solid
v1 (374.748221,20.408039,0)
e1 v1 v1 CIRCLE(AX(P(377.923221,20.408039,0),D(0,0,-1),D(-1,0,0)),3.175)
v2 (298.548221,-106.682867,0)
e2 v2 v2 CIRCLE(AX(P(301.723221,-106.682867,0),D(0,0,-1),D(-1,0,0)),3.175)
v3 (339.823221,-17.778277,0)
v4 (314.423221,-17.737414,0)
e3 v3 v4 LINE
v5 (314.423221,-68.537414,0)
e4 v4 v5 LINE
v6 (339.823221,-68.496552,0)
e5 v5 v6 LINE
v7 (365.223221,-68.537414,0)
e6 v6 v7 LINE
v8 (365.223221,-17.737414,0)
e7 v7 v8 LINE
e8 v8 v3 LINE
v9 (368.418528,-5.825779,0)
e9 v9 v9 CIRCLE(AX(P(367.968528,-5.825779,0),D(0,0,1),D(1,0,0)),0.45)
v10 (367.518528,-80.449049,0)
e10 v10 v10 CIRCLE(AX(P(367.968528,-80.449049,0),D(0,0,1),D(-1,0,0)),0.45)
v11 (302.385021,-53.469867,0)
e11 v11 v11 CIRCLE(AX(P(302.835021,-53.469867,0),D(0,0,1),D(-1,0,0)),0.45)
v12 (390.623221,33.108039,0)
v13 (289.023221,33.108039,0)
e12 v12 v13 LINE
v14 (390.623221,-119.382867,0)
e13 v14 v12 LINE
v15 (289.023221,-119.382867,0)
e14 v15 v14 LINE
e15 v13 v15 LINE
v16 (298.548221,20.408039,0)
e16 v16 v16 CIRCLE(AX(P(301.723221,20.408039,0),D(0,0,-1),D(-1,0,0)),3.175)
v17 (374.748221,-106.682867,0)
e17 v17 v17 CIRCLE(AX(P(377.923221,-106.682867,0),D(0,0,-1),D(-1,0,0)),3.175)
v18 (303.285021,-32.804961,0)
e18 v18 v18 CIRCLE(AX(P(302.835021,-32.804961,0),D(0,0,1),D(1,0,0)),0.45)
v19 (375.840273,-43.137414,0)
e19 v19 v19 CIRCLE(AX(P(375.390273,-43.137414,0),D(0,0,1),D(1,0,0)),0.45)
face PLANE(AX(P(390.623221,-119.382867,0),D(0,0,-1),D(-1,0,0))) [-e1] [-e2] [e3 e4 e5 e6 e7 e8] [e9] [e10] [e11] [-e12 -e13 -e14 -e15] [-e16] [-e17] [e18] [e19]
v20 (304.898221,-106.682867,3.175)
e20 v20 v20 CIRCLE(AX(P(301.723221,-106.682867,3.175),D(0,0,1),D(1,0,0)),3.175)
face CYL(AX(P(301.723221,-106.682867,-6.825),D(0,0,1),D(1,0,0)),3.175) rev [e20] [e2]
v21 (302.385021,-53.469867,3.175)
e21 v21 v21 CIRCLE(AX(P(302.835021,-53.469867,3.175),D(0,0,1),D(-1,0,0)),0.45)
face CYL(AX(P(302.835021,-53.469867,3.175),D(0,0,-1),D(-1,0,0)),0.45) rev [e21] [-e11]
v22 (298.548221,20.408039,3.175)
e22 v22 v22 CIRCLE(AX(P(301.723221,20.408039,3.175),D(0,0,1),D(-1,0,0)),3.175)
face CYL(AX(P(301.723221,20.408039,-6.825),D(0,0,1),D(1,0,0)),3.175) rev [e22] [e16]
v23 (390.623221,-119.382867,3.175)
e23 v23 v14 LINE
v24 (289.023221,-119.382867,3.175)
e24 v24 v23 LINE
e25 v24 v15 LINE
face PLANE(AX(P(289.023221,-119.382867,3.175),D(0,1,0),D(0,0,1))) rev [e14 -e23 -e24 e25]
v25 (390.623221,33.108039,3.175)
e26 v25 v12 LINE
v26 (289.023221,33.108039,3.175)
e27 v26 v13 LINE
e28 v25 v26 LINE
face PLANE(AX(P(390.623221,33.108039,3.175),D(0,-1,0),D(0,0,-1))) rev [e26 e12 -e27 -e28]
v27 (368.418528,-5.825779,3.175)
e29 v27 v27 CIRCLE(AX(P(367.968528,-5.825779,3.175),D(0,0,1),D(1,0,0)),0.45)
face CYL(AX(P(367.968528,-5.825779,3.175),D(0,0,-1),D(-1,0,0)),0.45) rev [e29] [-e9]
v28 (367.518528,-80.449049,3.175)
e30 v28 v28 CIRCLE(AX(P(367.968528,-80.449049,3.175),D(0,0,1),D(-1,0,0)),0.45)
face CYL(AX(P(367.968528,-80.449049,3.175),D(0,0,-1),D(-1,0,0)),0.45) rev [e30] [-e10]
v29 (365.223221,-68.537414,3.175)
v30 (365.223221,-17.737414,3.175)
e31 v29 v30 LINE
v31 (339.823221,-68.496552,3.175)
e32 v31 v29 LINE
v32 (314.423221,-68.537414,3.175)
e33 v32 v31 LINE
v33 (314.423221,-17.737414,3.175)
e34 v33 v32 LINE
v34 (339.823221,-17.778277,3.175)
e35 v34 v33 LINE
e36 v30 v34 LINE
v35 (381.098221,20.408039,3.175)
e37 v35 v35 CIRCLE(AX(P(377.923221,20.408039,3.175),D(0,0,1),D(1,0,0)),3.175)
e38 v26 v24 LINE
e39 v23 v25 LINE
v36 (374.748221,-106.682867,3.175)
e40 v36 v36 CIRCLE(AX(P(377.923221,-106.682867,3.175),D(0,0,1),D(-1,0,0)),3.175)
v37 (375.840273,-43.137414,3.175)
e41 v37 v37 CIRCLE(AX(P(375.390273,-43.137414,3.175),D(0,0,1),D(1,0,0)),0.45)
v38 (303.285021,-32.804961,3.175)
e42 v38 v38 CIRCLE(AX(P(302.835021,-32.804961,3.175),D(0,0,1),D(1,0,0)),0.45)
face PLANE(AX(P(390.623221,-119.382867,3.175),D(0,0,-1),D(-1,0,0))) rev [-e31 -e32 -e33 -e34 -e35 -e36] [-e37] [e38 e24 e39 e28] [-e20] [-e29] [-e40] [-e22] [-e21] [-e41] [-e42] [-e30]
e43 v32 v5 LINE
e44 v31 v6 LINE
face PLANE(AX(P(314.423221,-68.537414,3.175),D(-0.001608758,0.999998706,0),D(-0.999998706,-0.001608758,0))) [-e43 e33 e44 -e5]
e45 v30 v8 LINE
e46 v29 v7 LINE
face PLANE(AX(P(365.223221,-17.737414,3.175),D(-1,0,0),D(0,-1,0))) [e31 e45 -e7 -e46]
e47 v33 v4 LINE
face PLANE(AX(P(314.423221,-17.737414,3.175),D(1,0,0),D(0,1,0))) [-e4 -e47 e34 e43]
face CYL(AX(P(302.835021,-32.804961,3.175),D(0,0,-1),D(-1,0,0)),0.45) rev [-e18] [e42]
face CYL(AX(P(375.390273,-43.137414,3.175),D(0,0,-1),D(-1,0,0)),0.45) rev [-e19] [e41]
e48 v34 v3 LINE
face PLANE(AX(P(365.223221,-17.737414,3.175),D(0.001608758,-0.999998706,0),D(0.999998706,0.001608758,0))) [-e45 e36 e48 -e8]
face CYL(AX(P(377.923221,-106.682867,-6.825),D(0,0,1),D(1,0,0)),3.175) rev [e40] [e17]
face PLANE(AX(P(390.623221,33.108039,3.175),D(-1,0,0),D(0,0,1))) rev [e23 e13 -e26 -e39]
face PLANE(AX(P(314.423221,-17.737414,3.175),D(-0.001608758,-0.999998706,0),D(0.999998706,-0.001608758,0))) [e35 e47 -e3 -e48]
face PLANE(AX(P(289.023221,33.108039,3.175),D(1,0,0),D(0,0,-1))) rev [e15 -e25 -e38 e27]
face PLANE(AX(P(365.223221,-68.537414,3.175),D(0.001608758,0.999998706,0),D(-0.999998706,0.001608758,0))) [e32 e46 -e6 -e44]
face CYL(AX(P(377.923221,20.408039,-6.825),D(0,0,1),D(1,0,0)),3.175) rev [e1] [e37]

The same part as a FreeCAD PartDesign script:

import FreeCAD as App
import Part
import Sketcher
Q = App.Units.Quantity


def add_polygon(sketch, points):
    """Adds a closed chain of lines whose ends are joined by coincident constraints."""
    first, n = sketch.GeometryCount, len(points)
    for a, b in zip(points, points[1:] + points[:1]):
        sketch.addGeometry(Part.LineSegment(App.Vector(*a, 0), App.Vector(*b, 0)), False)
    for i in range(n):
        sketch.addConstraint(Sketcher.Constraint("Coincident", first + i, 2, first + (i + 1) % n, 1))

doc = App.newDocument("Part")
body = doc.addObject("PartDesign::Body", "Body")

sketch1 = body.newObject("Sketcher::SketchObject", "Sketch")
sketch1.AttachmentSupport = (doc.getObject("XY_Plane"), [""])
sketch1.MapMode = "FlatFace"
add_polygon(sketch1, [(289.02, 33.11), (289.02, -119.38), (390.62, -119.38), (390.62, 33.11)])
sketch1.addGeometry(Part.Circle(App.Vector(302.84, -53.47, 0), App.Vector(0, 0, 1), 0.45), False)
sketch1.addGeometry(Part.Circle(App.Vector(367.97, -80.45, 0), App.Vector(0, 0, 1), 0.45), False)
add_polygon(sketch1, [(339.82, -17.78), (365.22, -17.74), (365.22, -68.54), (339.82, -68.5), (314.42, -68.54), (314.42, -17.74)])
sketch1.addGeometry(Part.Circle(App.Vector(375.39, -43.14, 0), App.Vector(0, 0, 1), 0.45), False)
sketch1.addGeometry(Part.Circle(App.Vector(302.84, -32.8, 0), App.Vector(0, 0, 1), 0.45), False)
sketch1.addGeometry(Part.Circle(App.Vector(367.97, -5.83, 0), App.Vector(0, 0, 1), 0.45), False)
sketch1.addConstraint(Sketcher.Constraint("Vertical", 0))
sketch1.addConstraint(Sketcher.Constraint("Horizontal", 1))
sketch1.addConstraint(Sketcher.Constraint("Vertical", 2))
sketch1.addConstraint(Sketcher.Constraint("Horizontal", 3))
sketch1.addConstraint(Sketcher.Constraint("Vertical", 7))
sketch1.addConstraint(Sketcher.Constraint("Vertical", 10))
sketch1.addConstraint(Sketcher.Constraint("Equal", 4, 5))
sketch1.addConstraint(Sketcher.Constraint("Equal", 5, 12))
sketch1.addConstraint(Sketcher.Constraint("Equal", 12, 13))
sketch1.addConstraint(Sketcher.Constraint("Equal", 13, 14))
sketch1.addConstraint(Sketcher.Constraint("Parallel", 6, 9))
sketch1.addConstraint(Sketcher.Constraint("Parallel", 8, 11))
sketch1.addConstraint(Sketcher.Constraint("Horizontal", 7, 2, 9, 2))
sketch1.addConstraint(Sketcher.Constraint("Horizontal", 6, 2, 10, 2))
sketch1.addConstraint(Sketcher.Constraint("Vertical", 4, 3, 13, 3))
sketch1.addConstraint(Sketcher.Constraint("Vertical", 5, 3, 14, 3))
sketch1.addConstraint(Sketcher.Constraint("Vertical", 8, 2, 11, 2))
sketch1.addConstraint(Sketcher.Constraint("DistanceX", 1, 1, 1, 2, Q("4 in")))
sketch1.addConstraint(Sketcher.Constraint("DistanceY", 7, 2, 7, 1, Q("2 in")))
sketch1.addConstraint(Sketcher.Constraint("DistanceY", 12, 3, 6, 2, Q("1 in")))
sketch1.addConstraint(Sketcher.Constraint("DistanceX", 6, 2, 2, 2, Q("1 in")))
sketch1.addConstraint(Sketcher.Constraint("DistanceX", 8, 2, 7, 2, Q("1 in")))
sketch1.addConstraint(Sketcher.Constraint("Diameter", 4, Q("0.9 mm")))
sketch1.addConstraint(Sketcher.Constraint("DistanceY", 0, 2, 4, 3, Q("2.595 in")))
sketch1.addConstraint(Sketcher.Constraint("DistanceY", 13, 3, 2, 2, Q("2.595 in")))
sketch1.addConstraint(Sketcher.Constraint("DistanceX", 0, 2, 4, 3, Q("13.8118 mm")))
sketch1.addConstraint(Sketcher.Constraint("DistanceY", 0, 2, 0, 1, Q("152.490905 mm")))
sketch1.addConstraint(Sketcher.Constraint("DistanceX", -1, 1, 4, 3, Q("302.835021 mm")))
sketch1.addConstraint(Sketcher.Constraint("DistanceY", 5, 3, -1, 1, Q("80.449049 mm")))
sketch1.addConstraint(Sketcher.Constraint("DistanceY", 13, 3, -1, 1, Q("32.804961 mm")))
sketch1.addConstraint(Sketcher.Constraint("DistanceY", 14, 3, -1, 1, Q("5.825779 mm")))
sketch1.addConstraint(Sketcher.Constraint("DistanceY", 8, 2, -1, 1, Q("68.496552 mm")))
sketch1.addConstraint(Sketcher.Constraint("DistanceX", -1, 1, 5, 3, Q("367.968528 mm")))
sketch1.addConstraint(Sketcher.Constraint("DistanceX", -1, 1, 12, 3, Q("375.390273 mm")))
sketch1.addConstraint(Sketcher.Constraint("DistanceY", 12, 3, -1, 1, Q("43.137414 mm")))
pad1 = body.newObject("PartDesign::Pad", "Pad")
pad1.Profile = sketch1
pad1.Length = Q("0.125 in")

sketch2 = body.newObject("Sketcher::SketchObject", "Sketch001")
sketch2.AttachmentSupport = (doc.getObject("XY_Plane"), [""])
sketch2.MapMode = "FlatFace"
sketch2.AttachmentOffset = App.Placement(App.Vector(0, 0, 0.125 * 25.4), App.Rotation())
sketch2.addGeometry(Part.Circle(App.Vector(377.9, 20.4, 0), App.Vector(0, 0, 1), 3.2), False)
sketch2.addGeometry(Part.Circle(App.Vector(301.7, 20.4, 0), App.Vector(0, 0, 1), 3.2), False)
sketch2.addGeometry(Part.Circle(App.Vector(301.7, -106.7, 0), App.Vector(0, 0, 1), 3.2), False)
sketch2.addGeometry(Part.Circle(App.Vector(377.9, -106.7, 0), App.Vector(0, 0, 1), 3.2), False)
sketch2.addConstraint(Sketcher.Constraint("Equal", 0, 1))
sketch2.addConstraint(Sketcher.Constraint("Equal", 1, 2))
sketch2.addConstraint(Sketcher.Constraint("Equal", 2, 3))
sketch2.addConstraint(Sketcher.Constraint("Horizontal", 0, 3, 1, 3))
sketch2.addConstraint(Sketcher.Constraint("Horizontal", 2, 3, 3, 3))
sketch2.addConstraint(Sketcher.Constraint("Vertical", 1, 3, 2, 3))
sketch2.addConstraint(Sketcher.Constraint("Vertical", 0, 3, 3, 3))
sketch2.addConstraint(Sketcher.Constraint("Diameter", 0, Q("0.25 in")))
sketch2.addConstraint(Sketcher.Constraint("DistanceX", 1, 3, 0, 3, Q("3 in")))
sketch2.addConstraint(Sketcher.Constraint("DistanceX", -1, 1, 0, 3, Q("377.923221 mm")))
sketch2.addConstraint(Sketcher.Constraint("DistanceY", -1, 1, 0, 3, Q("20.408039 mm")))
sketch2.addConstraint(Sketcher.Constraint("DistanceY", 2, 3, -1, 1, Q("106.682867 mm")))
pocket1 = body.newObject("PartDesign::Pocket", "Pocket")
pocket1.Profile = sketch2
pocket1.Length = 10

doc.recompute()
